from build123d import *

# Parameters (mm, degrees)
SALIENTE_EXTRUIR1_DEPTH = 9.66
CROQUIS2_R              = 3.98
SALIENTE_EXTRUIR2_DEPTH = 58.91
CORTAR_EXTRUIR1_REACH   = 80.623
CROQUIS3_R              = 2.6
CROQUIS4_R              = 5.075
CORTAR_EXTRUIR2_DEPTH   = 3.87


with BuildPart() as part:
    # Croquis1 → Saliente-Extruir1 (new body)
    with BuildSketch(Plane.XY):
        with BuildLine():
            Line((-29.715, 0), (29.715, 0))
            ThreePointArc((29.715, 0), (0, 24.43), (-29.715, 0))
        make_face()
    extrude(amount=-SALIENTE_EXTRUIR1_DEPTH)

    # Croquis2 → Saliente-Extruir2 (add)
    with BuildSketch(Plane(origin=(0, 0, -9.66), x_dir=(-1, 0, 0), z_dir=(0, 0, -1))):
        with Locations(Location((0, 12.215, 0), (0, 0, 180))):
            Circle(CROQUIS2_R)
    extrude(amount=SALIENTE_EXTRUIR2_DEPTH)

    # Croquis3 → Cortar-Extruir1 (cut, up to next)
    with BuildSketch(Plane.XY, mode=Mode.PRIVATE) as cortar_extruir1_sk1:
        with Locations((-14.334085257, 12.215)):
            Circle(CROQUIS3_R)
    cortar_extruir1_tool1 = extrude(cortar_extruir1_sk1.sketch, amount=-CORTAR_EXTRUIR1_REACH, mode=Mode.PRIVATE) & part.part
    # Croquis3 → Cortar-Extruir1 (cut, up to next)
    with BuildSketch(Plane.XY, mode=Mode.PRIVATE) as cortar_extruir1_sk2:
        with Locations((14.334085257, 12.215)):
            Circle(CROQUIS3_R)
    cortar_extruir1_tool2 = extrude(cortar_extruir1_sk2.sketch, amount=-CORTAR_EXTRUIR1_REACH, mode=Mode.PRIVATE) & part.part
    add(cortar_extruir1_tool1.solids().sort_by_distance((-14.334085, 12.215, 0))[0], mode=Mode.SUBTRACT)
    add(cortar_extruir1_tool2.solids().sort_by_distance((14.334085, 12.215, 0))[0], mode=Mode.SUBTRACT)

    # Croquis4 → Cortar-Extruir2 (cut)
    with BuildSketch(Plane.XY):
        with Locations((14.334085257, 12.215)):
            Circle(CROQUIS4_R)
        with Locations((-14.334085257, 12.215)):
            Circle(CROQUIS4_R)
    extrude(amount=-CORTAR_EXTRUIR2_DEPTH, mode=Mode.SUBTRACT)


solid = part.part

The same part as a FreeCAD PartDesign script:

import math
import FreeCAD as App
import Part
import Sketcher

V = App.Vector

doc = App.newDocument("Part")
params = doc.addObject("Spreadsheet::Sheet", "Params")
for row, (alias, value) in enumerate([
    ("sketch1_width", "59.43 mm"),
    ("pad1_length", "9.66 mm"),
    ("sketch2_diameter", "7.96 mm"),
    ("pad2_length", "58.91 mm"),
    ("sketch3_diameter", "5.2 mm"),
    ("sketch4_diameter", "5.2 mm"),
    ("sketch5_diameter", "10.15 mm"),
    ("pocket3_length", "3.87 mm"),
], start=1):
    params.set(f"A{row}", alias)
    params.set(f"B{row}", "=" + value)
    params.setAlias(f"B{row}", alias)

body = doc.addObject("PartDesign::Body", "Body")

# Sketch on XY plane
sketch1 = body.newObject("Sketcher::SketchObject", "Sketch")
sketch1.AttachmentSupport = (doc.getObject("XY_Plane"), [""])
sketch1.MapMode = "FlatFace"
sketch1.addGeometry(Part.LineSegment(V(-30, 0, 0), V(30, 0, 0)), False)
sketch1.addGeometry(Part.ArcOfCircle(Part.Circle(V(0, -6, 0), V(0, 0, 1), 30), math.radians(11), math.radians(169)), False)
sketch1.addConstraint(Sketcher.Constraint("Coincident", 0, 1, 1, 2))
sketch1.addConstraint(Sketcher.Constraint("Coincident", 1, 1, 0, 2))
sketch1.addConstraint(Sketcher.Constraint("Horizontal", 0))
sketch1.addConstraint(Sketcher.Constraint("Symmetric", 0, 1, 1, 1, -1, 1))
sketch1.addConstraint(Sketcher.Constraint("DistanceX", 0, 1, 0, 2, 59.43))
sketch1.addConstraint(Sketcher.Constraint("Radius", 1, 30.286658))
sketch1.setExpression("Constraints[4]", "Params.sketch1_width")
pad1 = body.newObject("PartDesign::Pad", "Pad")
pad1.Profile = sketch1
pad1.setExpression("Length", "Params.pad1_length")
pad1.Reversed = True

# Sketch on XY plane
sketch2 = body.newObject("Sketcher::SketchObject", "Sketch001")
sketch2.AttachmentSupport = (doc.getObject("XY_Plane"), [""])
sketch2.MapMode = "FlatFace"
sketch2.AttachmentOffset = App.Placement(V(0, 0, -9.66), App.Rotation())
sketch2.addGeometry(Part.Circle(V(0, 12.2, 0), V(0, 0, 1), 4), False)
sketch2.addConstraint(Sketcher.Constraint("PointOnObject", 0, 3, -2))
sketch2.addConstraint(Sketcher.Constraint("Diameter", 0, 7.96))
sketch2.addConstraint(Sketcher.Constraint("DistanceY", -1, 1, 0, 3, 12.215))
sketch2.setExpression("Constraints[1]", "Params.sketch2_diameter")
pad2 = body.newObject("PartDesign::Pad", "Pad001")
pad2.Profile = sketch2
pad2.setExpression("Length", "Params.pad2_length")
pad2.Reversed = True

# Sketch on XY plane
sketch3 = body.newObject("Sketcher::SketchObject", "Sketch002")
sketch3.AttachmentSupport = (doc.getObject("XY_Plane"), [""])
sketch3.MapMode = "FlatFace"
sketch3.addGeometry(Part.Circle(V(-14.3, 12.2, 0), V(0, 0, 1), 2.6), False)
sketch3.addConstraint(Sketcher.Constraint("Diameter", 0, 5.2))
sketch3.addConstraint(Sketcher.Constraint("DistanceY", -1, 1, 0, 3, 12.215))
sketch3.addConstraint(Sketcher.Constraint("DistanceX", 0, 3, -1, 1, 14.334085))
sketch3.setExpression("Constraints[0]", "Params.sketch3_diameter")
pocket1 = body.newObject("PartDesign::Pocket", "Pocket")
pocket1.Profile = sketch3
pocket1.Type = "UpToFirst"

# Sketch on XY plane
sketch4 = body.newObject("Sketcher::SketchObject", "Sketch003")
sketch4.AttachmentSupport = (doc.getObject("XY_Plane"), [""])
sketch4.MapMode = "FlatFace"
sketch4.addGeometry(Part.Circle(V(14.3, 12.2, 0), V(0, 0, 1), 2.6), False)
sketch4.addConstraint(Sketcher.Constraint("Diameter", 0, 5.2))
sketch4.addConstraint(Sketcher.Constraint("DistanceY", -1, 1, 0, 3, 12.215))
sketch4.addConstraint(Sketcher.Constraint("DistanceX", -1, 1, 0, 3, 14.334085))
sketch4.setExpression("Constraints[0]", "Params.sketch4_diameter")
pocket2 = body.newObject("PartDesign::Pocket", "Pocket001")
pocket2.Profile = sketch4
pocket2.Type = "UpToFirst"

# Sketch on XY plane
sketch5 = body.newObject("Sketcher::SketchObject", "Sketch004")
sketch5.AttachmentSupport = (doc.getObject("XY_Plane"), [""])
sketch5.MapMode = "FlatFace"
sketch5.addGeometry(Part.Circle(V(14, 12, 0), V(0, 0, 1), 5), False)
sketch5.addGeometry(Part.Circle(V(-14, 12, 0), V(0, 0, 1), 5), False)
sketch5.addConstraint(Sketcher.Constraint("Equal", 0, 1))
sketch5.addConstraint(Sketcher.Constraint("Symmetric", 0, 3, 1, 3, -2))
sketch5.addConstraint(Sketcher.Constraint("Diameter", 0, 10.15))
sketch5.addConstraint(Sketcher.Constraint("DistanceY", -1, 1, 0, 3, 12.215))
sketch5.addConstraint(Sketcher.Constraint("DistanceX", 1, 3, 0, 3, 28.668171))
sketch5.setExpression("Constraints[2]", "Params.sketch5_diameter")
pocket3 = body.newObject("PartDesign::Pocket", "Pocket002")
pocket3.Profile = sketch5
pocket3.setExpression("Length", "Params.pocket3_length")

doc.recompute()
